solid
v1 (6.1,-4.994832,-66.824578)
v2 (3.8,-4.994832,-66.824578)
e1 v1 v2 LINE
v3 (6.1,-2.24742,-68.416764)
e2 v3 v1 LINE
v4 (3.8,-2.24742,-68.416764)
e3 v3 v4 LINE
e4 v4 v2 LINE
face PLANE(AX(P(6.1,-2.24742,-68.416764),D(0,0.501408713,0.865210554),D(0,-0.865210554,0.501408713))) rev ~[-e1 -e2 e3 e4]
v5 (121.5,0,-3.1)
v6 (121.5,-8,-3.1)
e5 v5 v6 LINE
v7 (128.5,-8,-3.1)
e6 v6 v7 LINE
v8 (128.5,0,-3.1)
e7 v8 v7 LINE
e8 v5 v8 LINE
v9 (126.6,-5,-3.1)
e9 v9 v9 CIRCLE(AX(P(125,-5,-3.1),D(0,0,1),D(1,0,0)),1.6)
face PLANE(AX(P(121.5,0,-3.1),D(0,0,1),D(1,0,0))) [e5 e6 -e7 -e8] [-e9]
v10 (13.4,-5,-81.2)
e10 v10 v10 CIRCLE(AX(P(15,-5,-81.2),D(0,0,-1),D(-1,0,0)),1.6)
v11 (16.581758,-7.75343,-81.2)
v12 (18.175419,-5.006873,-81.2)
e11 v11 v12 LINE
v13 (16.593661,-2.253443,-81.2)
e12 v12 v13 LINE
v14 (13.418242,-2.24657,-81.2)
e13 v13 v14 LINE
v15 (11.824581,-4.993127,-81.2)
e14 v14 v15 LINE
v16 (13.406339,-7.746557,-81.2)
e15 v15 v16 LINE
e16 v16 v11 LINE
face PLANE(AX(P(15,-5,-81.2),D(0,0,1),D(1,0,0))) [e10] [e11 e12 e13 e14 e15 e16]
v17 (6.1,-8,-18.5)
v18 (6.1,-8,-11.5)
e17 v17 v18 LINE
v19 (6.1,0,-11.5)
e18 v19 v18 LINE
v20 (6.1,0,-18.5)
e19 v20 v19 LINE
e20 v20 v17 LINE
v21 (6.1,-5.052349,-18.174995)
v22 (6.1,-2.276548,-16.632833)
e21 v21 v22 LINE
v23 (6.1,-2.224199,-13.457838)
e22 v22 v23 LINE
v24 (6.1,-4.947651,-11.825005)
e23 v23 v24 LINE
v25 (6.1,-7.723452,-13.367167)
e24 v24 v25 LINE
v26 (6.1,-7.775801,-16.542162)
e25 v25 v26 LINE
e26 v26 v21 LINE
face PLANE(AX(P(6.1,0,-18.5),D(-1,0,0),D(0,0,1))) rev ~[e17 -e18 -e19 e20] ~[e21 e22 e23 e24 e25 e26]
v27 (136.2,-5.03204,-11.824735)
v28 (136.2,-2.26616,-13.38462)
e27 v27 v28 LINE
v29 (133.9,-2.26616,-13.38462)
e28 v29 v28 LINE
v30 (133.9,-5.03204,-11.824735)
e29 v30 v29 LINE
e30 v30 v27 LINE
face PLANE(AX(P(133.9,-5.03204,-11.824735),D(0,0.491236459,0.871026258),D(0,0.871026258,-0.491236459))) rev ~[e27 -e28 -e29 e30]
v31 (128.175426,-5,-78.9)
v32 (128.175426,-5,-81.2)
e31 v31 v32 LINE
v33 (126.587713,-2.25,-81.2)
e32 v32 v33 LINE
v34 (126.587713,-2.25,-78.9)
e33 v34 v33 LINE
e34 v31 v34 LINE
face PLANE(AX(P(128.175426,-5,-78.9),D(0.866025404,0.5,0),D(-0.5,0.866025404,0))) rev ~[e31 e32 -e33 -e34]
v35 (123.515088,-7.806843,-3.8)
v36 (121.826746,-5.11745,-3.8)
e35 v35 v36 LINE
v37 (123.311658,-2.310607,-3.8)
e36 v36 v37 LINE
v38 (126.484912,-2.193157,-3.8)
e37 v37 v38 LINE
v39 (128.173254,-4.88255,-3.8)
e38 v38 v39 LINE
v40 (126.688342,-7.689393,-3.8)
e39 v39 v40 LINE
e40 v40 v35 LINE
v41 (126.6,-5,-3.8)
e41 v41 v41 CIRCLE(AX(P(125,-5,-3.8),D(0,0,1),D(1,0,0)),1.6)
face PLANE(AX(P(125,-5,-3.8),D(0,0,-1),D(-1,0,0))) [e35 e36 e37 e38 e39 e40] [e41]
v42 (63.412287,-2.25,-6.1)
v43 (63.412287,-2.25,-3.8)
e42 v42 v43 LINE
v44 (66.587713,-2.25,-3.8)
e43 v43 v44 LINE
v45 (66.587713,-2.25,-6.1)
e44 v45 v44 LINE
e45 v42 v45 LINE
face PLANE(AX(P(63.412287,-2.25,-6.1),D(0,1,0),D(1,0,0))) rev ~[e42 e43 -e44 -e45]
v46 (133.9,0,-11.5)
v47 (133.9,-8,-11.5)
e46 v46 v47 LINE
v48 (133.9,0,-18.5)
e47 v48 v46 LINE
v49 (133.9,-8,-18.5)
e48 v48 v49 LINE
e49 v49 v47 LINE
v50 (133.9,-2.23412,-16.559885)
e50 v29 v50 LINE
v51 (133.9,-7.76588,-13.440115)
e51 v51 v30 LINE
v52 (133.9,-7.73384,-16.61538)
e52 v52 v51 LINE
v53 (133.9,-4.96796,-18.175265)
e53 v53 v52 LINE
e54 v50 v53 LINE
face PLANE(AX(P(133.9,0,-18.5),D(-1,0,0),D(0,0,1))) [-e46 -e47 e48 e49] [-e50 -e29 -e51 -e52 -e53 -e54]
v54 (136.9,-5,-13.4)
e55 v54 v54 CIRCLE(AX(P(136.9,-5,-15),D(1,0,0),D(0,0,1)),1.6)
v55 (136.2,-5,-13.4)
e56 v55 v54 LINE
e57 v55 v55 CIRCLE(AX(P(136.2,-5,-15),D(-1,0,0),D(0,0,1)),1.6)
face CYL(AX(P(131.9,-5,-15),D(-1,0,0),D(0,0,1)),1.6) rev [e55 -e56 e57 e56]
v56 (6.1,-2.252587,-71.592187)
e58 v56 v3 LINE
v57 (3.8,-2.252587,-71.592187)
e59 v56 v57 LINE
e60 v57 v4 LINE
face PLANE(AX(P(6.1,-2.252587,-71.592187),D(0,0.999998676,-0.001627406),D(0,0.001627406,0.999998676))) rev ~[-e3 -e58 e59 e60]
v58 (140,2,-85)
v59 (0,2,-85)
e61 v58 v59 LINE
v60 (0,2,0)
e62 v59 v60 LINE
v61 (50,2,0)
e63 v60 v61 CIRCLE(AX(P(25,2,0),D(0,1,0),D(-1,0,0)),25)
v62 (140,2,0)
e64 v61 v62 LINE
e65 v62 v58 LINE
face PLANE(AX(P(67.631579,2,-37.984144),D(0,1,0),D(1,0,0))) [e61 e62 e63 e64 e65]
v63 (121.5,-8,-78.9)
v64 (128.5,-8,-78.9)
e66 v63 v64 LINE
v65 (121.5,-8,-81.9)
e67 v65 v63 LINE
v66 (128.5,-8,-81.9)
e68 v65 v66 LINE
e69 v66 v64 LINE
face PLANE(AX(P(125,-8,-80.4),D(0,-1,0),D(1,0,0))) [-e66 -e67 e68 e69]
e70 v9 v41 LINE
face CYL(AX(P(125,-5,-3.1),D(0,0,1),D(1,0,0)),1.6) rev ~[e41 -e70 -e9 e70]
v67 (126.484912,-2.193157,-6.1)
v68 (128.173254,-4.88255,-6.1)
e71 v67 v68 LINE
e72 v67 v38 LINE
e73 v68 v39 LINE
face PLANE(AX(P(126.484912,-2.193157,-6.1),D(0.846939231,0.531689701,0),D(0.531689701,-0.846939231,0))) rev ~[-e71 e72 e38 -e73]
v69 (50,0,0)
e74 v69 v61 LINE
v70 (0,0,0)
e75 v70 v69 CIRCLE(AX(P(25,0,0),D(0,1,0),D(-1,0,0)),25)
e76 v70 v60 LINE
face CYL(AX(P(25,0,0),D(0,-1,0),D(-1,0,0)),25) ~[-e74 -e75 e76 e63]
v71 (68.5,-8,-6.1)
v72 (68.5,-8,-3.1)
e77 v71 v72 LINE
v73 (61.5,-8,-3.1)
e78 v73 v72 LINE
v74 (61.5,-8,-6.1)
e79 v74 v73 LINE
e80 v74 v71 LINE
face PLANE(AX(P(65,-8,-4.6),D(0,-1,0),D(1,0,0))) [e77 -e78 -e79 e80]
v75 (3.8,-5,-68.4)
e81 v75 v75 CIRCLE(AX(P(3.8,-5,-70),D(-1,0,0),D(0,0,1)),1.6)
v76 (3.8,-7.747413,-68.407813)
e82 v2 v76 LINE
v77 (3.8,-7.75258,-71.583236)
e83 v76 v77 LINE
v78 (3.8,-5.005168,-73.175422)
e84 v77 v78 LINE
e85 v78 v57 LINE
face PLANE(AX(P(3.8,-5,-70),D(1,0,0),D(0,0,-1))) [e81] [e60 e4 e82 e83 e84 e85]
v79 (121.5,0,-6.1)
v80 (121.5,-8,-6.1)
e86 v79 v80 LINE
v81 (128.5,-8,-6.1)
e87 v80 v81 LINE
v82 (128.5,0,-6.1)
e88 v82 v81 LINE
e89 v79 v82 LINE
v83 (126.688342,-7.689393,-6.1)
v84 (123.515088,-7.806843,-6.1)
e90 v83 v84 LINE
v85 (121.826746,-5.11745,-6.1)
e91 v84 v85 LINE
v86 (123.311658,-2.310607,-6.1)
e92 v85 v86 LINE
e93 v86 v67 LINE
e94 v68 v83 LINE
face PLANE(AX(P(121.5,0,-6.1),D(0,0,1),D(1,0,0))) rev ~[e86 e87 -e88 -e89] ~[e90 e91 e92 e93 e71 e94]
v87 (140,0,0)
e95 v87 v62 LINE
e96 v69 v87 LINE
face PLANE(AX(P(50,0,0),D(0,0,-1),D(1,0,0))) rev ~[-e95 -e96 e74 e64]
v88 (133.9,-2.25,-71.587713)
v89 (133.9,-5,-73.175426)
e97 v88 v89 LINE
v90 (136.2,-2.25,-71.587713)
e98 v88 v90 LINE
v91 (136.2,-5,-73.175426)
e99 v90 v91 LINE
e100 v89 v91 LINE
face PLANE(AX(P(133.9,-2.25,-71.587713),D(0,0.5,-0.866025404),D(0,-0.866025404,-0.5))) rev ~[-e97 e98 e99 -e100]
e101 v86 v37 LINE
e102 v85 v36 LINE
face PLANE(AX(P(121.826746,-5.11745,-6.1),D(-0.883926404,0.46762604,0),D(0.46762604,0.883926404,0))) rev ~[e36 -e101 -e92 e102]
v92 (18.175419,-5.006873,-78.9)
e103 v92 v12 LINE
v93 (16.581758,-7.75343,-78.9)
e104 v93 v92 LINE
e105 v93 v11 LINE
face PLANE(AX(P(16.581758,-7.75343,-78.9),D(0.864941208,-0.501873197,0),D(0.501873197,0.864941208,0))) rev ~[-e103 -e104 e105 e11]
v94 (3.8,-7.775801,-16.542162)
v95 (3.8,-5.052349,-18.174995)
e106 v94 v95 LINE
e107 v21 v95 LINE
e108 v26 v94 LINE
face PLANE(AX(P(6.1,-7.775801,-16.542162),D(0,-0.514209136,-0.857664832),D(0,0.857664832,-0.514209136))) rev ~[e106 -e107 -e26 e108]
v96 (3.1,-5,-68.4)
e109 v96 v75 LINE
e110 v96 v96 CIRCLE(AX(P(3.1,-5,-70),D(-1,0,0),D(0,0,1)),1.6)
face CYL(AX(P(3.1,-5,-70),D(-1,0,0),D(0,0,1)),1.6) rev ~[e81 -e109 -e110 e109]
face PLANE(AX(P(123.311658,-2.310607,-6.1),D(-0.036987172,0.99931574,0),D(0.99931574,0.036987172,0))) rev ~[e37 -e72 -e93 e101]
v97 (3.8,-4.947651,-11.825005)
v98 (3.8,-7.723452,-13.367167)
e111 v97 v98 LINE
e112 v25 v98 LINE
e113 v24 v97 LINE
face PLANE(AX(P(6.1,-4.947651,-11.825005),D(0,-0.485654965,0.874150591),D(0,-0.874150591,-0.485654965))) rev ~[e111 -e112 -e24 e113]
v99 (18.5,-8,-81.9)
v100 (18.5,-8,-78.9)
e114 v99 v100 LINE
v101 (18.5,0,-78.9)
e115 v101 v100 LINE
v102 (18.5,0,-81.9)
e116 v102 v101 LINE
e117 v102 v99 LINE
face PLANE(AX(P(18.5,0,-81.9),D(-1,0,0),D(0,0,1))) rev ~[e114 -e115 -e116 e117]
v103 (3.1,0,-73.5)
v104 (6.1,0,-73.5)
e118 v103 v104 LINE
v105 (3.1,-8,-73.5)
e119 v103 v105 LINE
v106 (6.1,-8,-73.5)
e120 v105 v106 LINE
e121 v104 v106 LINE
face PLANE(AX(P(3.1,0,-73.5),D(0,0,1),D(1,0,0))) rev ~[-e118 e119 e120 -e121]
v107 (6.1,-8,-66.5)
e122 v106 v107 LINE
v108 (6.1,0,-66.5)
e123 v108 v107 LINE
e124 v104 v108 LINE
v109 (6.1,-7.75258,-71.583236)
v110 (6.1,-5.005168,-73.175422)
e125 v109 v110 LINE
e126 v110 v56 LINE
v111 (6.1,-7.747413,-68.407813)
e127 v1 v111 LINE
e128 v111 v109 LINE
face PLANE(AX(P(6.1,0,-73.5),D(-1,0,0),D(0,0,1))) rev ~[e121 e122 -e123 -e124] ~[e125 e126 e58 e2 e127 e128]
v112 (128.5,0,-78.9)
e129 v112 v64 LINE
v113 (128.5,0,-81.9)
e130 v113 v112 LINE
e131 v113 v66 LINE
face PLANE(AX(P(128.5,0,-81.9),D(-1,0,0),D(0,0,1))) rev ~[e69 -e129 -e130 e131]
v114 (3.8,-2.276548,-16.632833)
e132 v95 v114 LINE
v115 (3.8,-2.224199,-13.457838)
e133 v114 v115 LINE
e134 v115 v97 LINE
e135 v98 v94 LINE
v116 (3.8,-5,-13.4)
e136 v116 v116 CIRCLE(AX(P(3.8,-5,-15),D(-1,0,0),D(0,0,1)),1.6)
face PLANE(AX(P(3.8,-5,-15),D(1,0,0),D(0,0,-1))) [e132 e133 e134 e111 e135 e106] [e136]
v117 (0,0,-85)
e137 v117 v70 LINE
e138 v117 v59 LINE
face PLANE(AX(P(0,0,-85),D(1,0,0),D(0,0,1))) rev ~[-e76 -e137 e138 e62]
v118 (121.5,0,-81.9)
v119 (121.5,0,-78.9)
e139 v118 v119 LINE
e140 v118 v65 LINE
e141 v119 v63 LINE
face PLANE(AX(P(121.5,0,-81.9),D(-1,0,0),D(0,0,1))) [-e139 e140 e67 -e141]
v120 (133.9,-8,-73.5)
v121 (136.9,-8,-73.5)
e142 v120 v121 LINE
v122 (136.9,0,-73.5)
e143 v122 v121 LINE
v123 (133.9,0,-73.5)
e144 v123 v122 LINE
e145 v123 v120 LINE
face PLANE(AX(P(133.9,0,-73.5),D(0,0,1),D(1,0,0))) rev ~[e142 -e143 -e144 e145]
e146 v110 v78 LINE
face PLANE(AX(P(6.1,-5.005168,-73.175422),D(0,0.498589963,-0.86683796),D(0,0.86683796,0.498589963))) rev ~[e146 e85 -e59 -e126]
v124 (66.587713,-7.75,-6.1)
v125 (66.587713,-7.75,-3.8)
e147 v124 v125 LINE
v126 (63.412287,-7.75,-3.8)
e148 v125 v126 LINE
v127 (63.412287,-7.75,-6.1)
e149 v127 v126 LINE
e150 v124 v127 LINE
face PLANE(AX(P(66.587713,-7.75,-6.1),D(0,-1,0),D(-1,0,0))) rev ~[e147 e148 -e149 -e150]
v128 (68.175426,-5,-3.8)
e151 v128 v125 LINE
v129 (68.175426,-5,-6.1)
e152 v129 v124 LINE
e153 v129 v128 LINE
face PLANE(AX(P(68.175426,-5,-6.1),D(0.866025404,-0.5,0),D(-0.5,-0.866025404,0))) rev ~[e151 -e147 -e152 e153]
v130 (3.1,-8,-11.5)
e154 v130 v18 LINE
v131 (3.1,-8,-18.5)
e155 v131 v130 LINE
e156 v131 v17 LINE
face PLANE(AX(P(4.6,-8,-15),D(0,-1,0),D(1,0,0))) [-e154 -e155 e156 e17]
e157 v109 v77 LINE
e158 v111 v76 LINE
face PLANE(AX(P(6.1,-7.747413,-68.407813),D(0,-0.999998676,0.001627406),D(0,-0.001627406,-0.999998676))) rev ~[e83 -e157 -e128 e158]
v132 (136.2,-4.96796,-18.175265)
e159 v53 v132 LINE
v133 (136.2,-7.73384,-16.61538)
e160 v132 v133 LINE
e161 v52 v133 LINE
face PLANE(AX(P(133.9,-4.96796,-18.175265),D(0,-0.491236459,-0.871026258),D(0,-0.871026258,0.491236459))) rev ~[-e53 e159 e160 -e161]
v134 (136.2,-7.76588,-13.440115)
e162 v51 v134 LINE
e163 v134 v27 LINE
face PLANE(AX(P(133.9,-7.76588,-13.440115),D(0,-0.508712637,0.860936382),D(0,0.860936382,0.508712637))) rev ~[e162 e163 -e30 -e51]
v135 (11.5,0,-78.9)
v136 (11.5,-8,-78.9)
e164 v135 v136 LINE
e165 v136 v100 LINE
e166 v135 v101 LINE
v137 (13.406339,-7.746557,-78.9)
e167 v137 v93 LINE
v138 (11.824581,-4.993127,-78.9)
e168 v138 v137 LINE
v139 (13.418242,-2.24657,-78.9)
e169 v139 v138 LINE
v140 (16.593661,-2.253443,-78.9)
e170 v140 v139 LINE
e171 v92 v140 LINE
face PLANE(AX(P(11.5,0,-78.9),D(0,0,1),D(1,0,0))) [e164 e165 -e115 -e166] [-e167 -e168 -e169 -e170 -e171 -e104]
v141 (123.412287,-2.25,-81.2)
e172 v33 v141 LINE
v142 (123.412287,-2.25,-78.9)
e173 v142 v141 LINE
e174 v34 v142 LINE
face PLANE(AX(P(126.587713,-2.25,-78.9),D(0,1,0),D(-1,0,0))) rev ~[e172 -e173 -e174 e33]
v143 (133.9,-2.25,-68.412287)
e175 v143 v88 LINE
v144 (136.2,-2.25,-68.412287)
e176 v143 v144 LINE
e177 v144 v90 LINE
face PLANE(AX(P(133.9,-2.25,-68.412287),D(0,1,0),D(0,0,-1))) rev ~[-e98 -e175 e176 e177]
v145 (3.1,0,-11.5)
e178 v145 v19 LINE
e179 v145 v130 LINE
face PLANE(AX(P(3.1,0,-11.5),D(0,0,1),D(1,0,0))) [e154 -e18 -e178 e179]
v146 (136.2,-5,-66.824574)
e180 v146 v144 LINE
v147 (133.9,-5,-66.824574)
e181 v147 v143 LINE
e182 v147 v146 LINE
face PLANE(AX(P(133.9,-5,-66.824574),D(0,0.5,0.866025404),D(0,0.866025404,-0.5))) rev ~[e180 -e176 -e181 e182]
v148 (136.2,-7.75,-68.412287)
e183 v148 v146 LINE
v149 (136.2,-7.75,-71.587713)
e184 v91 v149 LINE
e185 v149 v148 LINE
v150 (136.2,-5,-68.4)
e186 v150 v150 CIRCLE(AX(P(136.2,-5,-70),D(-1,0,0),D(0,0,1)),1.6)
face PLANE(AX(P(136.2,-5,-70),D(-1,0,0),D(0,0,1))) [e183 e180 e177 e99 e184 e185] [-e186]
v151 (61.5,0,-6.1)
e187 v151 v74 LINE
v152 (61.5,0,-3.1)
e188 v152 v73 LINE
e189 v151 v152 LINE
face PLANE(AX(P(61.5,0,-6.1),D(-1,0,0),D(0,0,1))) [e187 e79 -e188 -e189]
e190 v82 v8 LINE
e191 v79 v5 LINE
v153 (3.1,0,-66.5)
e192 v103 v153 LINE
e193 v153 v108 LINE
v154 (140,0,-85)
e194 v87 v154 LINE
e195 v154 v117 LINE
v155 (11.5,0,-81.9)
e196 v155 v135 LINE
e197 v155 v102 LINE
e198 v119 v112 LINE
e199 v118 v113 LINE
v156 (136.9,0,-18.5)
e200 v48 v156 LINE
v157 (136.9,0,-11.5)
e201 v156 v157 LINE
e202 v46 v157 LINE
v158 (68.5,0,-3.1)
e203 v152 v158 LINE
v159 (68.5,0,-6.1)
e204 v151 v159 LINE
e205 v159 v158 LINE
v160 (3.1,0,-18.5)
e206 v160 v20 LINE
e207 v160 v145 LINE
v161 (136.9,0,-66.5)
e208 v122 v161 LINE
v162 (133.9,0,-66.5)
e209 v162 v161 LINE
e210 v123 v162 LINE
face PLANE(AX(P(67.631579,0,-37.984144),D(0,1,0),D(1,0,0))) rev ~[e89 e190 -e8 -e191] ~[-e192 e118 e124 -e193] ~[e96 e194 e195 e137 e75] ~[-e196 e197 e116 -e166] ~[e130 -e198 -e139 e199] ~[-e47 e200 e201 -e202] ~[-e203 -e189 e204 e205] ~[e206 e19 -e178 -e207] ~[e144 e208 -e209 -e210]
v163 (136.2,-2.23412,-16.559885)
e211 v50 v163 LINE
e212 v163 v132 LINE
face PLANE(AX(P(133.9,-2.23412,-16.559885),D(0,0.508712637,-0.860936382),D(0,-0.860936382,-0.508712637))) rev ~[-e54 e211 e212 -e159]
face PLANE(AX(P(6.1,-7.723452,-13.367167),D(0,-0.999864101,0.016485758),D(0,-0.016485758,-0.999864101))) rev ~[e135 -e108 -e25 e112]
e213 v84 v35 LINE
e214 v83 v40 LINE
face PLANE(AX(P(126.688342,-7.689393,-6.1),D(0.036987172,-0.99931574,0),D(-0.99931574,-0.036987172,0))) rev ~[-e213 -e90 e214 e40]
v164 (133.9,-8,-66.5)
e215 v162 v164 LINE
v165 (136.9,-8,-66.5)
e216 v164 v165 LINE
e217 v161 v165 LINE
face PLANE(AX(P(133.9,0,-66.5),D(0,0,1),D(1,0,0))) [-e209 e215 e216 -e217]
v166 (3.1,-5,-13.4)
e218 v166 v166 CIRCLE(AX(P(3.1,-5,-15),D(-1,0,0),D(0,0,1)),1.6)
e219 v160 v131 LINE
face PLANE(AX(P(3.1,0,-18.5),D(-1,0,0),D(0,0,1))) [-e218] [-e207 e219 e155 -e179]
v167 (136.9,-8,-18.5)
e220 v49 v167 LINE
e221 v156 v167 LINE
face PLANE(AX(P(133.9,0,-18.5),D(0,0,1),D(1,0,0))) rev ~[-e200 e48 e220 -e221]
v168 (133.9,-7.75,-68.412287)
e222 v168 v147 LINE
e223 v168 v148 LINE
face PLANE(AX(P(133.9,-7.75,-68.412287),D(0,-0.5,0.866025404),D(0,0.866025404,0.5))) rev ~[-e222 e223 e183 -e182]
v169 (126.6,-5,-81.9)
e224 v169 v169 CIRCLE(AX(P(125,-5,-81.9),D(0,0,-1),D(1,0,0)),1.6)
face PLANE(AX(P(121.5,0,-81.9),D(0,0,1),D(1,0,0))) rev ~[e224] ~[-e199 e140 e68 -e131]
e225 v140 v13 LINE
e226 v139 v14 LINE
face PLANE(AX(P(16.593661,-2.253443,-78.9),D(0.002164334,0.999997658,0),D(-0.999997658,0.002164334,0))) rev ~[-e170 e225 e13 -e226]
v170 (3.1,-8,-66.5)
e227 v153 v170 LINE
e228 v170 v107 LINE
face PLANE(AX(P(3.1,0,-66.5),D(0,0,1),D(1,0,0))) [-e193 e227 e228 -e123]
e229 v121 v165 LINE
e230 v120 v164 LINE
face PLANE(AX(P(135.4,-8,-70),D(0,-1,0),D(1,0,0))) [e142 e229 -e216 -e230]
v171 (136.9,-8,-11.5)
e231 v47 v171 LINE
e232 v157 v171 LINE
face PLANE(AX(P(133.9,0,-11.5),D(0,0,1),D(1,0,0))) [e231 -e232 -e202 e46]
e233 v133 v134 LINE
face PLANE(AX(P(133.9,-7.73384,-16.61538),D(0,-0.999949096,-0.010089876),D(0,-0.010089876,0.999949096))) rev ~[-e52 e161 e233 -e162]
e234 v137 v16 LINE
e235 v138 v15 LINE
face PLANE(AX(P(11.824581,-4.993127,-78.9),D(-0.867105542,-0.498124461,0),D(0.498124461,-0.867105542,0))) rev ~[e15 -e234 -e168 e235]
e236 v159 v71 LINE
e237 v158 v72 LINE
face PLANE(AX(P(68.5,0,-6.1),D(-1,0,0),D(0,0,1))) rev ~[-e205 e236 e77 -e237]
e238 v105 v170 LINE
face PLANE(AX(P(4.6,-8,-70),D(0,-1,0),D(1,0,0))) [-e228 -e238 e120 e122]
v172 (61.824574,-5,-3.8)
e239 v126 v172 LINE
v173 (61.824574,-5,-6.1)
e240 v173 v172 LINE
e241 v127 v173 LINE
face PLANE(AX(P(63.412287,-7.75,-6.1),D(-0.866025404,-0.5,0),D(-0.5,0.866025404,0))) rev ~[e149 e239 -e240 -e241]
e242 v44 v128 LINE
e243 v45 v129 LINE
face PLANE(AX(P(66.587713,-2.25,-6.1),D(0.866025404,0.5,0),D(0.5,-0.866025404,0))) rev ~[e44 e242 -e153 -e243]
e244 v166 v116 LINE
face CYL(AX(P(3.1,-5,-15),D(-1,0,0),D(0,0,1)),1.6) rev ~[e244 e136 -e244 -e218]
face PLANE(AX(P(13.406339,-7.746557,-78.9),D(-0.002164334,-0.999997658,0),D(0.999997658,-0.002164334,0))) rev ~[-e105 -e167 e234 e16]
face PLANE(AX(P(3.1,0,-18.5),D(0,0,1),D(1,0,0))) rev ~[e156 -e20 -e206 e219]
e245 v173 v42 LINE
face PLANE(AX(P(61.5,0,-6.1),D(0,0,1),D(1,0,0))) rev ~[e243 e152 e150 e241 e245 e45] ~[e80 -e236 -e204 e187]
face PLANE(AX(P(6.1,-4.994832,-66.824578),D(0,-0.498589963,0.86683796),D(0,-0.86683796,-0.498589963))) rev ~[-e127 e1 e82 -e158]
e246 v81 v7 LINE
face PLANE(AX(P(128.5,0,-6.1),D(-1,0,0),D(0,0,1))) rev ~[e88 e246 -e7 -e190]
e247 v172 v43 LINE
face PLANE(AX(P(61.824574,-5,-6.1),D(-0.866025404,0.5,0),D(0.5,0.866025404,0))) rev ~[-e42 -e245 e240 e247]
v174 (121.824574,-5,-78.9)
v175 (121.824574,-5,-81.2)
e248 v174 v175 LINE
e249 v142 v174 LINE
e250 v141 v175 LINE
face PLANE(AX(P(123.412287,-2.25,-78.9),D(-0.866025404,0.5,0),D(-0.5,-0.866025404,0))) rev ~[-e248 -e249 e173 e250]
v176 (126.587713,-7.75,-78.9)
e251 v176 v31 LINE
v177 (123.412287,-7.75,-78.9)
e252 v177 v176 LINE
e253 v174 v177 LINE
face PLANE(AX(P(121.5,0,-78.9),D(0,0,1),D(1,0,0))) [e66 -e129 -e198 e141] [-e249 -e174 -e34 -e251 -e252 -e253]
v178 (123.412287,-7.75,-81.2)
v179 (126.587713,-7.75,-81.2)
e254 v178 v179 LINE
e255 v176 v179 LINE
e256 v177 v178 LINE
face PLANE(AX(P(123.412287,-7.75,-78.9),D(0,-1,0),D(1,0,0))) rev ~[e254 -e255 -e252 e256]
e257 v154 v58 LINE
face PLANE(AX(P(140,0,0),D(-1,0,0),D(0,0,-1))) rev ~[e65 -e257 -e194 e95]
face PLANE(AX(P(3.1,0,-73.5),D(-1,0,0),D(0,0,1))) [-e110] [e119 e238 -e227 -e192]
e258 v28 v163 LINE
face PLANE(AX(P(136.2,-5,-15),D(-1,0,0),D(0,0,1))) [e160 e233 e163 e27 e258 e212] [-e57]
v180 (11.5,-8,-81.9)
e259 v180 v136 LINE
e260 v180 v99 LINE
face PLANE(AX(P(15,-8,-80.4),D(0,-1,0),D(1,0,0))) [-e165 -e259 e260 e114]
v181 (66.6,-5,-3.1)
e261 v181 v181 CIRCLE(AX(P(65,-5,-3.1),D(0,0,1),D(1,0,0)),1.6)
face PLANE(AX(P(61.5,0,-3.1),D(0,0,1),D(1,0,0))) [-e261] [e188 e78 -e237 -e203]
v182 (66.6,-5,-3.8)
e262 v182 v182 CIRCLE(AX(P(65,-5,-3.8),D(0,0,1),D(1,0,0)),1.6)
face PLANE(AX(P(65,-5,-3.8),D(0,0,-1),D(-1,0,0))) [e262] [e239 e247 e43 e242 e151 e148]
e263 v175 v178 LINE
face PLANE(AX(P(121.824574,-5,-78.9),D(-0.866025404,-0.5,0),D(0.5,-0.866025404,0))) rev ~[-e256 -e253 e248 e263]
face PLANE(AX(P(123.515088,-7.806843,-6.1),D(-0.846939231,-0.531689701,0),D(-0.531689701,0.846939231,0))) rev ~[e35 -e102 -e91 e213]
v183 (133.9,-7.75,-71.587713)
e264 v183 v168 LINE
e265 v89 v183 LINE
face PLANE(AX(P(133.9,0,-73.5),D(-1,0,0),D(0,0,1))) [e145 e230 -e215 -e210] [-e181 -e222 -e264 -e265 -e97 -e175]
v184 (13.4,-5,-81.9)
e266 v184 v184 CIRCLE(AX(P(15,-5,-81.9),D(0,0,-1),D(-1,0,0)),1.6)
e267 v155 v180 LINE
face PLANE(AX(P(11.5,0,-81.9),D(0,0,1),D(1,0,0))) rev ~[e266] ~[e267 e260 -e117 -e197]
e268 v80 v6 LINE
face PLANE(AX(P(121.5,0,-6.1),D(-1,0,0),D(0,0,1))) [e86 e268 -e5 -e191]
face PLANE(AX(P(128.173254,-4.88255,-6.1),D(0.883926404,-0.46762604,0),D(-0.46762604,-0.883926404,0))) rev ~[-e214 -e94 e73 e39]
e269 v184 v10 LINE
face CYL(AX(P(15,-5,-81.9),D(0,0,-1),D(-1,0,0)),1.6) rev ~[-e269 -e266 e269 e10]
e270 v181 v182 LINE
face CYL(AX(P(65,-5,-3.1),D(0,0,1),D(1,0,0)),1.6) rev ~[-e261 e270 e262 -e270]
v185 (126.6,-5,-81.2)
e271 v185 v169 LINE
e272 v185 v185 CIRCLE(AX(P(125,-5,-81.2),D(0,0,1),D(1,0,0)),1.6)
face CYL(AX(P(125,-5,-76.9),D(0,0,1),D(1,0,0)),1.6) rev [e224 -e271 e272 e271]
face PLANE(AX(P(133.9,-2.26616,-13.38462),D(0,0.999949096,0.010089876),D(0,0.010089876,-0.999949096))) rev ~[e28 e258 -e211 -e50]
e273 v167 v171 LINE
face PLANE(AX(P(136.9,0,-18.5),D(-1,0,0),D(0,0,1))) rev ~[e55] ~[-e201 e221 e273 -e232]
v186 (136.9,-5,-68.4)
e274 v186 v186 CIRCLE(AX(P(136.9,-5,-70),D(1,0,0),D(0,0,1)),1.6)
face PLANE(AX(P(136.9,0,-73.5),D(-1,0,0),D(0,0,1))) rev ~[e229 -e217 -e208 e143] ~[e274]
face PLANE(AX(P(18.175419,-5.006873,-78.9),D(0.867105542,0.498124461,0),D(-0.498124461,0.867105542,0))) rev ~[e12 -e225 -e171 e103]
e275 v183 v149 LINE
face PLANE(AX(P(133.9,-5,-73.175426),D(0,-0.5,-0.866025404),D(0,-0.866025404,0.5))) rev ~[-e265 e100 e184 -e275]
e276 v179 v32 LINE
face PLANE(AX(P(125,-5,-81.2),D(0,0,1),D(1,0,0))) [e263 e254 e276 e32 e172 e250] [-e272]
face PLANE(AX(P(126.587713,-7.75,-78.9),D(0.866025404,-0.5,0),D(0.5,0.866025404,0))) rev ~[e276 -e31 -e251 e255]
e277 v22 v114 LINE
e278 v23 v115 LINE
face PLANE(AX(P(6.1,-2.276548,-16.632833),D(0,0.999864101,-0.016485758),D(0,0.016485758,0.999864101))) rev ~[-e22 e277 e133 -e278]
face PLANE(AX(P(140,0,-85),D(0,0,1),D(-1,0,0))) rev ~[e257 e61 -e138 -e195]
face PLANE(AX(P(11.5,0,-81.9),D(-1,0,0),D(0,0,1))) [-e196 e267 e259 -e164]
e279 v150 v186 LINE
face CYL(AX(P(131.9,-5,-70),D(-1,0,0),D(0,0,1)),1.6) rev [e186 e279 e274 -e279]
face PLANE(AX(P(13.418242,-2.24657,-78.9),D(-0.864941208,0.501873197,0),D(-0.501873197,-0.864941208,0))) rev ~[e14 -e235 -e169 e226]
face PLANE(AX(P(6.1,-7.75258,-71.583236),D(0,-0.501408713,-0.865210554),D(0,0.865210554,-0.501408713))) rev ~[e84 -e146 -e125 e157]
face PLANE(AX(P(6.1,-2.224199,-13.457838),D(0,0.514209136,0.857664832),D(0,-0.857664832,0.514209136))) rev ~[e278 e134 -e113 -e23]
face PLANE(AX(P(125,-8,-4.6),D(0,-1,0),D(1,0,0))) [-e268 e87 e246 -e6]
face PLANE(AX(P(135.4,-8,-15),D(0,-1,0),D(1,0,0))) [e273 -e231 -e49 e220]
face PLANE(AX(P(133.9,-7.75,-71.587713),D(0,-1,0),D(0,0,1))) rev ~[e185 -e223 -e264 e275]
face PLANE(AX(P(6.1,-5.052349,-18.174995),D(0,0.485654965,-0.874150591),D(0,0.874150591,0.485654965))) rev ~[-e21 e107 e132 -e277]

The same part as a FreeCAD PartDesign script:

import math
import FreeCAD as App
import Part
import Sketcher
Q = App.Units.Quantity


def add_polygon(sketch, points):
    """Adds a closed chain of lines whose ends are joined by coincident constraints."""
    first, n = sketch.GeometryCount, len(points)
    for a, b in zip(points, points[1:] + points[:1]):
        sketch.addGeometry(Part.LineSegment(App.Vector(*a, 0), App.Vector(*b, 0)), False)
    for i in range(n):
        sketch.addConstraint(Sketcher.Constraint("Coincident", first + i, 2, first + (i + 1) % n, 1))

doc = App.newDocument("Part")
body = doc.addObject("PartDesign::Body", "Body")

sketch1 = body.newObject("Sketcher::SketchObject", "Sketch")
sketch1.AttachmentSupport = (doc.getObject("XZ_Plane"), [""])
sketch1.MapMode = "FlatFace"
sketch1.addGeometry([
    Part.LineSegment(App.Vector(50, 0, 0), App.Vector(140, 0, 0)),
    Part.LineSegment(App.Vector(140, 0, 0), App.Vector(140, -85, 0)),
    Part.LineSegment(App.Vector(140, -85, 0), App.Vector(0, -85, 0)),
    Part.LineSegment(App.Vector(0, -85, 0), App.Vector(0, 0, 0)),
    Part.ArcOfCircle(Part.Circle(App.Vector(25, 0, 0), App.Vector(0, 0, 1), 25), math.radians(0), math.radians(180)),
], False)
sketch1.addConstraint([
    Sketcher.Constraint("Coincident", 0, 2, 1, 1),
    Sketcher.Constraint("Coincident", 1, 2, 2, 1),
    Sketcher.Constraint("Coincident", 2, 2, 3, 1),
    Sketcher.Constraint("Tangent", 3, 2, 4, 2),
    Sketcher.Constraint("Coincident", 4, 1, 0, 1),
    Sketcher.Constraint("Horizontal", 0),
    Sketcher.Constraint("Vertical", 1),
    Sketcher.Constraint("Horizontal", 2),
    Sketcher.Constraint("Vertical", 3),
    Sketcher.Constraint("Coincident", 3, 2, -1, 1),
    Sketcher.Constraint("PointOnObject", 0, 2, -1),
    Sketcher.Constraint("Radius", 4, 25.0),
    Sketcher.Constraint("DistanceX", 0, 1, 0, 2, 90.0),
    Sketcher.Constraint("DistanceY", 1, 2, 1, 1, 85.0),
])
pad1 = body.newObject("PartDesign::Pad", "Pad")
pad1.Profile = sketch1
pad1.Length = 2
pad1.Reversed = True

sketch2 = body.newObject("Sketcher::SketchObject", "Sketch001")
sketch2.AttachmentSupport = (doc.getObject("XZ_Plane"), [""])
sketch2.MapMode = "FlatFace"
add_polygon(sketch2, [(11.5, -78.9), (11.5, -81.9), (18.5, -81.9), (18.5, -78.9)])
add_polygon(sketch2, [(121.5, -78.9), (121.5, -81.9), (128.5, -81.9), (128.5, -78.9)])
add_polygon(sketch2, [(3.1, -66.5), (3.1, -73.5), (6.1, -73.5), (6.1, -66.5)])
add_polygon(sketch2, [(3.1, -11.5), (3.1, -18.5), (6.1, -18.5), (6.1, -11.5)])
add_polygon(sketch2, [(133.9, -66.5), (133.9, -73.5), (136.9, -73.5), (136.9, -66.5)])
add_polygon(sketch2, [(133.9, -11.5), (133.9, -18.5), (136.9, -18.5), (136.9, -11.5)])
add_polygon(sketch2, [(121.5, -3.1), (121.5, -6.1), (128.5, -6.1), (128.5, -3.1)])
add_polygon(sketch2, [(61.5, -3.1), (61.5, -6.1), (68.5, -6.1), (68.5, -3.1)])
sketch2.addConstraint([
    Sketcher.Constraint("Vertical", 0),
    Sketcher.Constraint("Horizontal", 1),
    Sketcher.Constraint("Vertical", 2),
    Sketcher.Constraint("Horizontal", 3),
    Sketcher.Constraint("Vertical", 4),
    Sketcher.Constraint("Horizontal", 5),
    Sketcher.Constraint("Vertical", 6),
    Sketcher.Constraint("Horizontal", 7),
    Sketcher.Constraint("Vertical", 8),
    Sketcher.Constraint("Horizontal", 9),
    Sketcher.Constraint("Vertical", 10),
    Sketcher.Constraint("Horizontal", 11),
    Sketcher.Constraint("Vertical", 12),
    Sketcher.Constraint("Horizontal", 13),
    Sketcher.Constraint("Vertical", 14),
    Sketcher.Constraint("Horizontal", 15),
    Sketcher.Constraint("Vertical", 16),
    Sketcher.Constraint("Horizontal", 17),
    Sketcher.Constraint("Vertical", 18),
    Sketcher.Constraint("Horizontal", 19),
    Sketcher.Constraint("Vertical", 20),
    Sketcher.Constraint("Horizontal", 21),
    Sketcher.Constraint("Vertical", 22),
    Sketcher.Constraint("Horizontal", 23),
    Sketcher.Constraint("Vertical", 24),
    Sketcher.Constraint("Horizontal", 25),
    Sketcher.Constraint("Vertical", 26),
    Sketcher.Constraint("Horizontal", 27),
    Sketcher.Constraint("Vertical", 28),
    Sketcher.Constraint("Horizontal", 29),
    Sketcher.Constraint("Vertical", 30),
    Sketcher.Constraint("Horizontal", 31),
    Sketcher.Constraint("Horizontal", 1, 2, 4, 2),
    Sketcher.Constraint("Horizontal", 3, 2, 6, 2),
    Sketcher.Constraint("Horizontal", 9, 2, 16, 2),
    Sketcher.Constraint("Horizontal", 11, 2, 18, 2),
    Sketcher.Constraint("Horizontal", 13, 2, 20, 2),
    Sketcher.Constraint("Horizontal", 15, 2, 22, 2),
    Sketcher.Constraint("Horizontal", 25, 2, 28, 2),
    Sketcher.Constraint("Horizontal", 27, 2, 30, 2),
    Sketcher.Constraint("Vertical", 11, 2, 12, 2),
    Sketcher.Constraint("Vertical", 10, 2, 13, 2),
    Sketcher.Constraint("Vertical", 19, 2, 20, 2),
    Sketcher.Constraint("Vertical", 18, 2, 21, 2),
    Sketcher.Constraint("Vertical", 7, 2, 24, 2),
    Sketcher.Constraint("Vertical", 6, 2, 25, 2),
    Sketcher.Constraint("Equal", 3, 5),
    Sketcher.Constraint("Equal", 15, 17),
    Sketcher.Constraint("Equal", 27, 29),
    Sketcher.Constraint("Equal", 23, 0),
    Sketcher.Constraint("Equal", 31, 8),
    Sketcher.Constraint("Equal", 10, 12),
    Sketcher.Constraint("Equal", 6, 24),
    Sketcher.Constraint("DistanceX", 1, 1, 1, 2, 7.0),
    Sketcher.Constraint("DistanceX", 9, 1, 9, 2, 3.0),
    Sketcher.Constraint("DistanceX", 1, 2, 4, 2, 103.0),
    Sketcher.Constraint("DistanceY", 11, 2, 12, 2, 48.0),
    Sketcher.Constraint("DistanceX", 28, 2, 24, 2, 60.0),
    Sketcher.Constraint("DistanceX", -1, 1, 0, 2, 11.5),
    Sketcher.Constraint("DistanceY", 0, 2, -1, 1, 81.9),
    Sketcher.Constraint("DistanceX", -1, 1, 8, 2, 3.1),
    Sketcher.Constraint("DistanceY", 8, 2, -1, 1, 73.5),
    Sketcher.Constraint("DistanceX", -1, 1, 16, 2, 133.9),
    Sketcher.Constraint("DistanceY", 24, 2, -1, 1, 6.1),
])
pad2 = body.newObject("PartDesign::Pad", "Pad001")
pad2.Profile = sketch2
pad2.Length = 8

sketch3 = body.newObject("Sketcher::SketchObject", "Sketch002")
sketch3.AttachmentSupport = (doc.getObject("XY_Plane"), [""])
sketch3.MapMode = "FlatFace"
sketch3.AttachmentOffset = App.Placement(App.Vector(0, 0, -6.1), App.Rotation())
add_polygon(sketch3, [(68.2, -5), (66.6, -7.8), (63.4, -7.8), (61.8, -5), (63.4, -2.2), (66.6, -2.2)])
sketch3.addConstraint([
    Sketcher.Constraint("Horizontal", 1),
    Sketcher.Constraint("Horizontal", 4),
    Sketcher.Constraint("Parallel", 0, 3),
    Sketcher.Constraint("Parallel", 2, 5),
    Sketcher.Constraint("Horizontal", 2, 2, 5, 2),
    Sketcher.Constraint("Vertical", 1, 2, 3, 2),
    Sketcher.Constraint("Vertical", 0, 2, 4, 2),
    Sketcher.Constraint("Angle", 0, Q("-120 deg")),
    Sketcher.Constraint("DistanceY", 2, 2, -1, 1, 5.0),
    Sketcher.Constraint("DistanceY", 1, 2, 3, 2, 5.5),
    Sketcher.Constraint("DistanceX", 1, 2, 1, 1, 3.175426),
    Sketcher.Constraint("DistanceX", -1, 1, 0, 2, 66.587713),
])
pocket1 = body.newObject("PartDesign::Pocket", "Pocket")
pocket1.Profile = sketch3
pocket1.Length = 2.3
pocket1.Reversed = True

sketch4 = body.newObject("Sketcher::SketchObject", "Sketch003")
sketch4.AttachmentSupport = (doc.getObject("XY_Plane"), [""])
sketch4.MapMode = "FlatFace"
sketch4.AttachmentOffset = App.Placement(App.Vector(0, 0, -6.1), App.Rotation())
add_polygon(sketch4, [(126.5, -2.2), (128.2, -4.9), (126.7, -7.7), (123.5, -7.8), (121.8, -5.1), (123.3, -2.3)])
sketch4.addConstraint([
    Sketcher.Constraint("Parallel", 0, 3),
    Sketcher.Constraint("Parallel", 1, 4),
    Sketcher.Constraint("Parallel", 2, 5),
    Sketcher.Constraint("Equal", 0, 1),
    Sketcher.Constraint("Equal", 1, 2),
    Sketcher.Constraint("Equal", 2, 3),
    Sketcher.Constraint("DistanceY", 3, 2, 0, 2, 0.2349),
    Sketcher.Constraint("DistanceY", 0, 2, -1, 1, 4.88255),
    Sketcher.Constraint("DistanceX", -1, 1, 1, 2, 126.688342),
    Sketcher.Constraint("DistanceX", -1, 1, 4, 2, 123.311658),
    Sketcher.Constraint("DistanceY", 2, 2, 1, 2, 0.11745),
    Sketcher.Constraint("DistanceX", 3, 2, 2, 2, 1.688342),
])
pocket2 = body.newObject("PartDesign::Pocket", "Pocket001")
pocket2.Profile = sketch4
pocket2.Length = 2.3
pocket2.Reversed = True

sketch5 = body.newObject("Sketcher::SketchObject", "Sketch004")
sketch5.AttachmentSupport = (doc.getObject("YZ_Plane"), [""])
sketch5.MapMode = "FlatFace"
sketch5.AttachmentOffset = App.Placement(App.Vector(0, 0, 6.1), App.Rotation())
add_polygon(sketch5, [(-2.2, -13.5), (-4.9, -11.8), (-7.7, -13.4), (-7.8, -16.5), (-5.1, -18.2), (-2.3, -16.6)])
sketch5.addConstraint([
    Sketcher.Constraint("Parallel", 0, 3),
    Sketcher.Constraint("Parallel", 1, 4),
    Sketcher.Constraint("Parallel", 2, 5),
    Sketcher.Constraint("Equal", 0, 1),
    Sketcher.Constraint("Equal", 1, 2),
    Sketcher.Constraint("Equal", 2, 3),
    Sketcher.Constraint("DistanceX", 2, 2, -1, 1, 7.775801),
    Sketcher.Constraint("DistanceX", 5, 2, -1, 1, 2.224199),
    Sketcher.Constraint("DistanceX", 1, 2, 0, 2, 2.775801),
    Sketcher.Constraint("DistanceX", 3, 2, 0, 2, 0.104699),
    Sketcher.Constraint("DistanceY", 2, 2, -1, 1, 16.542162),
    Sketcher.Constraint("DistanceY", 5, 2, -1, 1, 13.457838),
])
pocket3 = body.newObject("PartDesign::Pocket", "Pocket002")
pocket3.Profile = sketch5
pocket3.Length = 2.3

sketch6 = body.newObject("Sketcher::SketchObject", "Sketch005")
sketch6.AttachmentSupport = (doc.getObject("YZ_Plane"), [""])
sketch6.MapMode = "FlatFace"
sketch6.AttachmentOffset = App.Placement(App.Vector(0, 0, 6.1), App.Rotation())
add_polygon(sketch6, [(-2.2, -68.4), (-5, -66.8), (-7.7, -68.4), (-7.8, -71.6), (-5, -73.2), (-2.3, -71.6)])
sketch6.addConstraint([
    Sketcher.Constraint("Parallel", 0, 3),
    Sketcher.Constraint("Parallel", 1, 4),
    Sketcher.Constraint("Parallel", 2, 5),
    Sketcher.Constraint("Equal", 0, 1),
    Sketcher.Constraint("Equal", 1, 2),
    Sketcher.Constraint("Equal", 2, 3),
    Sketcher.Constraint("DistanceX", 2, 2, -1, 1, 7.75258),
    Sketcher.Constraint("DistanceX", 5, 2, -1, 1, 2.24742),
    Sketcher.Constraint("DistanceX", 1, 2, 0, 2, 2.75258),
    Sketcher.Constraint("DistanceY", 2, 2, 0, 2, 4.758658),
    Sketcher.Constraint("DistanceY", 3, 2, 1, 2, 4.767609),
    Sketcher.Constraint("DistanceY", 0, 2, -1, 1, 66.824578),
])
pocket4 = body.newObject("PartDesign::Pocket", "Pocket003")
pocket4.Profile = sketch6
pocket4.Length = 2.3

sketch7 = body.newObject("Sketcher::SketchObject", "Sketch006")
sketch7.AttachmentSupport = (doc.getObject("XY_Plane"), [""])
sketch7.MapMode = "FlatFace"
sketch7.AttachmentOffset = App.Placement(App.Vector(0, 0, -78.9), App.Rotation())
add_polygon(sketch7, [(13.4, -2.2), (11.8, -5), (13.4, -7.7), (16.6, -7.8), (18.2, -5), (16.6, -2.3)])
sketch7.addConstraint([
    Sketcher.Constraint("Parallel", 0, 3),
    Sketcher.Constraint("Parallel", 1, 4),
    Sketcher.Constraint("Parallel", 2, 5),
    Sketcher.Constraint("Equal", 0, 1),
    Sketcher.Constraint("Equal", 1, 2),
    Sketcher.Constraint("Equal", 2, 3),
    Sketcher.Constraint("DistanceX", -1, 1, 0, 2, 11.824581),
    Sketcher.Constraint("DistanceX", -1, 1, 1, 2, 13.406339),
    Sketcher.Constraint("DistanceY", 2, 2, -1, 1, 7.75343),
    Sketcher.Constraint("DistanceX", -1, 1, 3, 2, 18.175419),
    Sketcher.Constraint("DistanceY", 5, 2, -1, 1, 2.24657),
    Sketcher.Constraint("DistanceY", 1, 2, 0, 2, 2.75343),
])
pocket5 = body.newObject("PartDesign::Pocket", "Pocket004")
pocket5.Profile = sketch7
pocket5.Length = 2.3

sketch8 = body.newObject("Sketcher::SketchObject", "Sketch007")
sketch8.AttachmentSupport = (doc.getObject("YZ_Plane"), [""])
sketch8.MapMode = "FlatFace"
sketch8.AttachmentOffset = App.Placement(App.Vector(0, 0, 133.9), App.Rotation())
add_polygon(sketch8, [(-2.2, -16.6), (-5, -18.2), (-7.7, -16.6), (-7.8, -13.4), (-5, -11.8), (-2.3, -13.4)])
sketch8.addConstraint([
    Sketcher.Constraint("Parallel", 0, 3),
    Sketcher.Constraint("Parallel", 1, 4),
    Sketcher.Constraint("Parallel", 2, 5),
    Sketcher.Constraint("Equal", 0, 1),
    Sketcher.Constraint("Equal", 1, 2),
    Sketcher.Constraint("Equal", 2, 3),
    Sketcher.Constraint("DistanceX", 1, 2, 3, 2, 2.701801),
    Sketcher.Constraint("DistanceX", 0, 2, -1, 1, 4.96796),
    Sketcher.Constraint("DistanceX", 1, 2, -1, 1, 7.73384),
    Sketcher.Constraint("DistanceY", 1, 2, -1, 1, 16.61538),
    Sketcher.Constraint("DistanceX", 2, 2, -1, 1, 7.76588),
    Sketcher.Constraint("DistanceY", 4, 2, -1, 1, 13.38462),
])
pocket6 = body.newObject("PartDesign::Pocket", "Pocket005")
pocket6.Profile = sketch8
pocket6.Length = 2.3
pocket6.Reversed = True

sketch9 = body.newObject("Sketcher::SketchObject", "Sketch008")
sketch9.AttachmentSupport = (doc.getObject("YZ_Plane"), [""])
sketch9.MapMode = "FlatFace"
sketch9.AttachmentOffset = App.Placement(App.Vector(0, 0, 133.9), App.Rotation())
add_polygon(sketch9, [(-2.2, -71.6), (-5, -73.2), (-7.8, -71.6), (-7.8, -68.4), (-5, -66.8), (-2.2, -68.4)])
sketch9.addConstraint([
    Sketcher.Constraint("Vertical", 2),
    Sketcher.Constraint("Vertical", 5),
    Sketcher.Constraint("Parallel", 0, 3),
    Sketcher.Constraint("Parallel", 1, 4),
    Sketcher.Constraint("Horizontal", 2, 2, 4, 2),
    Sketcher.Constraint("Horizontal", 1, 2, 5, 2),
    Sketcher.Constraint("Vertical", 0, 2, 3, 2),
    Sketcher.Constraint("Angle", 0, Q("-150 deg")),
    Sketcher.Constraint("DistanceX", 0, 2, -1, 1, 5.0),
    Sketcher.Constraint("DistanceX", 2, 2, 4, 2, 5.5),
    Sketcher.Constraint("DistanceY", 2, 1, 2, 2, 3.175426),
    Sketcher.Constraint("DistanceY", 0, 2, -1, 1, 73.175426),
])
pocket7 = body.newObject("PartDesign::Pocket", "Pocket006")
pocket7.Profile = sketch9
pocket7.Length = 2.3
pocket7.Reversed = True

sketch10 = body.newObject("Sketcher::SketchObject", "Sketch009")
sketch10.AttachmentSupport = (doc.getObject("XY_Plane"), [""])
sketch10.MapMode = "FlatFace"
sketch10.AttachmentOffset = App.Placement(App.Vector(0, 0, -78.9), App.Rotation())
add_polygon(sketch10, [(123.4, -2.2), (121.8, -5), (123.4, -7.8), (126.6, -7.8), (128.2, -5), (126.6, -2.2)])
sketch10.addConstraint([
    Sketcher.Constraint("Horizontal", 2),
    Sketcher.Constraint("Horizontal", 5),
    Sketcher.Constraint("Parallel", 0, 3),
    Sketcher.Constraint("Parallel", 1, 4),
    Sketcher.Constraint("Horizontal", 0, 2, 3, 2),
    Sketcher.Constraint("Vertical", 2, 2, 4, 2),
    Sketcher.Constraint("Vertical", 1, 2, 5, 2),
    Sketcher.Constraint("Angle", 0, Q("-120 deg")),
    Sketcher.Constraint("DistanceY", 0, 2, -1, 1, 5.0),
    Sketcher.Constraint("DistanceY", 2, 2, 4, 2, 5.5),
    Sketcher.Constraint("DistanceX", 2, 1, 2, 2, 3.175426),
    Sketcher.Constraint("DistanceX", -1, 1, 0, 2, 121.824574),
])
pocket8 = body.newObject("PartDesign::Pocket", "Pocket007")
pocket8.Profile = sketch10
pocket8.Length = 2.3

sketch11 = body.newObject("Sketcher::SketchObject", "Sketch010")
sketch11.AttachmentSupport = (doc.getObject("XY_Plane"), [""])
sketch11.MapMode = "FlatFace"
sketch11.AttachmentOffset = App.Placement(App.Vector(0, 0, -3.1), App.Rotation())
sketch11.addGeometry(Part.Circle(App.Vector(125, -5, 0), App.Vector(0, 0, 1), 1.6), False)
sketch11.addConstraint([
    Sketcher.Constraint("Diameter", 0, 3.2),
    Sketcher.Constraint("DistanceX", -1, 1, 0, 3, 125.0),
    Sketcher.Constraint("DistanceY", 0, 3, -1, 1, 5.0),
])
pocket9 = body.newObject("PartDesign::Pocket", "Pocket008")
pocket9.Profile = sketch11
pocket9.Length = 5

sketch12 = body.newObject("Sketcher::SketchObject", "Sketch011")
sketch12.AttachmentSupport = (doc.getObject("XY_Plane"), [""])
sketch12.MapMode = "FlatFace"
sketch12.AttachmentOffset = App.Placement(App.Vector(0, 0, -3.1), App.Rotation())
sketch12.addGeometry(Part.Circle(App.Vector(65, -5, 0), App.Vector(0, 0, 1), 1.6), False)
sketch12.addConstraint([
    Sketcher.Constraint("Diameter", 0, 3.2),
    Sketcher.Constraint("DistanceX", -1, 1, 0, 3, 65.0),
    Sketcher.Constraint("DistanceY", 0, 3, -1, 1, 5.0),
])
pocket10 = body.newObject("PartDesign::Pocket", "Pocket009")
pocket10.Profile = sketch12
pocket10.Length = 5

sketch13 = body.newObject("Sketcher::SketchObject", "Sketch012")
sketch13.AttachmentSupport = (doc.getObject("YZ_Plane"), [""])
sketch13.MapMode = "FlatFace"
sketch13.AttachmentOffset = App.Placement(App.Vector(0, 0, 3.1), App.Rotation())
sketch13.addGeometry(Part.Circle(App.Vector(-5, -15, 0), App.Vector(0, 0, 1), 1.6), False)
sketch13.addConstraint([
    Sketcher.Constraint("Diameter", 0, 3.2),
    Sketcher.Constraint("DistanceX", 0, 3, -1, 1, 5.0),
    Sketcher.Constraint("DistanceY", 0, 3, -1, 1, 15.0),
])
pocket11 = body.newObject("PartDesign::Pocket", "Pocket010")
pocket11.Profile = sketch13
pocket11.Length = 5
pocket11.Reversed = True

sketch14 = body.newObject("Sketcher::SketchObject", "Sketch013")
sketch14.AttachmentSupport = (doc.getObject("YZ_Plane"), [""])
sketch14.MapMode = "FlatFace"
sketch14.AttachmentOffset = App.Placement(App.Vector(0, 0, 3.1), App.Rotation())
sketch14.addGeometry(Part.Circle(App.Vector(-5, -70, 0), App.Vector(0, 0, 1), 1.6), False)
sketch14.addConstraint([
    Sketcher.Constraint("Diameter", 0, 3.2),
    Sketcher.Constraint("DistanceX", 0, 3, -1, 1, 5.0),
    Sketcher.Constraint("DistanceY", 0, 3, -1, 1, 70.0),
])
pocket12 = body.newObject("PartDesign::Pocket", "Pocket011")
pocket12.Profile = sketch14
pocket12.Length = 5
pocket12.Reversed = True

sketch15 = body.newObject("Sketcher::SketchObject", "Sketch014")
sketch15.AttachmentSupport = (doc.getObject("XY_Plane"), [""])
sketch15.MapMode = "FlatFace"
sketch15.AttachmentOffset = App.Placement(App.Vector(0, 0, -81.9), App.Rotation())
sketch15.addGeometry(Part.Circle(App.Vector(15, -5, 0), App.Vector(0, 0, 1), 1.6), False)
sketch15.addConstraint([
    Sketcher.Constraint("Diameter", 0, 3.2),
    Sketcher.Constraint("DistanceX", -1, 1, 0, 3, 15.0),
    Sketcher.Constraint("DistanceY", 0, 3, -1, 1, 5.0),
])
pocket13 = body.newObject("PartDesign::Pocket", "Pocket012")
pocket13.Profile = sketch15
pocket13.Length = 5
pocket13.Reversed = True

sketch16 = body.newObject("Sketcher::SketchObject", "Sketch015")
sketch16.AttachmentSupport = (doc.getObject("XY_Plane"), [""])
sketch16.MapMode = "FlatFace"
sketch16.AttachmentOffset = App.Placement(App.Vector(0, 0, -76.9), App.Rotation())
sketch16.addGeometry(Part.Circle(App.Vector(125, -5, 0), App.Vector(0, 0, 1), 1.6), False)
sketch16.addConstraint([
    Sketcher.Constraint("Diameter", 0, 3.2),
    Sketcher.Constraint("DistanceX", -1, 1, 0, 3, 125.0),
    Sketcher.Constraint("DistanceY", 0, 3, -1, 1, 5.0),
])
pocket14 = body.newObject("PartDesign::Pocket", "Pocket013")
pocket14.Profile = sketch16
pocket14.Length = 5

sketch17 = body.newObject("Sketcher::SketchObject", "Sketch016")
sketch17.AttachmentSupport = (doc.getObject("YZ_Plane"), [""])
sketch17.MapMode = "FlatFace"
sketch17.AttachmentOffset = App.Placement(App.Vector(0, 0, 131.9), App.Rotation())
sketch17.addGeometry(Part.Circle(App.Vector(-5, -70, 0), App.Vector(0, 0, 1), 1.6), False)
sketch17.addConstraint([
    Sketcher.Constraint("Diameter", 0, 3.2),
    Sketcher.Constraint("DistanceX", 0, 3, -1, 1, 5.0),
    Sketcher.Constraint("DistanceY", 0, 3, -1, 1, 70.0),
])
pocket15 = body.newObject("PartDesign::Pocket", "Pocket014")
pocket15.Profile = sketch17
pocket15.Length = 5
pocket15.Reversed = True

sketch18 = body.newObject("Sketcher::SketchObject", "Sketch017")
sketch18.AttachmentSupport = (doc.getObject("YZ_Plane"), [""])
sketch18.MapMode = "FlatFace"
sketch18.AttachmentOffset = App.Placement(App.Vector(0, 0, 131.9), App.Rotation())
sketch18.addGeometry(Part.Circle(App.Vector(-5, -15, 0), App.Vector(0, 0, 1), 1.6), False)
sketch18.addConstraint([
    Sketcher.Constraint("Diameter", 0, 3.2),
    Sketcher.Constraint("DistanceX", 0, 3, -1, 1, 5.0),
    Sketcher.Constraint("DistanceY", 0, 3, -1, 1, 15.0),
])
pocket16 = body.newObject("PartDesign::Pocket", "Pocket015")
pocket16.Profile = sketch18
pocket16.Length = 5
pocket16.Reversed = True

doc.recompute()
